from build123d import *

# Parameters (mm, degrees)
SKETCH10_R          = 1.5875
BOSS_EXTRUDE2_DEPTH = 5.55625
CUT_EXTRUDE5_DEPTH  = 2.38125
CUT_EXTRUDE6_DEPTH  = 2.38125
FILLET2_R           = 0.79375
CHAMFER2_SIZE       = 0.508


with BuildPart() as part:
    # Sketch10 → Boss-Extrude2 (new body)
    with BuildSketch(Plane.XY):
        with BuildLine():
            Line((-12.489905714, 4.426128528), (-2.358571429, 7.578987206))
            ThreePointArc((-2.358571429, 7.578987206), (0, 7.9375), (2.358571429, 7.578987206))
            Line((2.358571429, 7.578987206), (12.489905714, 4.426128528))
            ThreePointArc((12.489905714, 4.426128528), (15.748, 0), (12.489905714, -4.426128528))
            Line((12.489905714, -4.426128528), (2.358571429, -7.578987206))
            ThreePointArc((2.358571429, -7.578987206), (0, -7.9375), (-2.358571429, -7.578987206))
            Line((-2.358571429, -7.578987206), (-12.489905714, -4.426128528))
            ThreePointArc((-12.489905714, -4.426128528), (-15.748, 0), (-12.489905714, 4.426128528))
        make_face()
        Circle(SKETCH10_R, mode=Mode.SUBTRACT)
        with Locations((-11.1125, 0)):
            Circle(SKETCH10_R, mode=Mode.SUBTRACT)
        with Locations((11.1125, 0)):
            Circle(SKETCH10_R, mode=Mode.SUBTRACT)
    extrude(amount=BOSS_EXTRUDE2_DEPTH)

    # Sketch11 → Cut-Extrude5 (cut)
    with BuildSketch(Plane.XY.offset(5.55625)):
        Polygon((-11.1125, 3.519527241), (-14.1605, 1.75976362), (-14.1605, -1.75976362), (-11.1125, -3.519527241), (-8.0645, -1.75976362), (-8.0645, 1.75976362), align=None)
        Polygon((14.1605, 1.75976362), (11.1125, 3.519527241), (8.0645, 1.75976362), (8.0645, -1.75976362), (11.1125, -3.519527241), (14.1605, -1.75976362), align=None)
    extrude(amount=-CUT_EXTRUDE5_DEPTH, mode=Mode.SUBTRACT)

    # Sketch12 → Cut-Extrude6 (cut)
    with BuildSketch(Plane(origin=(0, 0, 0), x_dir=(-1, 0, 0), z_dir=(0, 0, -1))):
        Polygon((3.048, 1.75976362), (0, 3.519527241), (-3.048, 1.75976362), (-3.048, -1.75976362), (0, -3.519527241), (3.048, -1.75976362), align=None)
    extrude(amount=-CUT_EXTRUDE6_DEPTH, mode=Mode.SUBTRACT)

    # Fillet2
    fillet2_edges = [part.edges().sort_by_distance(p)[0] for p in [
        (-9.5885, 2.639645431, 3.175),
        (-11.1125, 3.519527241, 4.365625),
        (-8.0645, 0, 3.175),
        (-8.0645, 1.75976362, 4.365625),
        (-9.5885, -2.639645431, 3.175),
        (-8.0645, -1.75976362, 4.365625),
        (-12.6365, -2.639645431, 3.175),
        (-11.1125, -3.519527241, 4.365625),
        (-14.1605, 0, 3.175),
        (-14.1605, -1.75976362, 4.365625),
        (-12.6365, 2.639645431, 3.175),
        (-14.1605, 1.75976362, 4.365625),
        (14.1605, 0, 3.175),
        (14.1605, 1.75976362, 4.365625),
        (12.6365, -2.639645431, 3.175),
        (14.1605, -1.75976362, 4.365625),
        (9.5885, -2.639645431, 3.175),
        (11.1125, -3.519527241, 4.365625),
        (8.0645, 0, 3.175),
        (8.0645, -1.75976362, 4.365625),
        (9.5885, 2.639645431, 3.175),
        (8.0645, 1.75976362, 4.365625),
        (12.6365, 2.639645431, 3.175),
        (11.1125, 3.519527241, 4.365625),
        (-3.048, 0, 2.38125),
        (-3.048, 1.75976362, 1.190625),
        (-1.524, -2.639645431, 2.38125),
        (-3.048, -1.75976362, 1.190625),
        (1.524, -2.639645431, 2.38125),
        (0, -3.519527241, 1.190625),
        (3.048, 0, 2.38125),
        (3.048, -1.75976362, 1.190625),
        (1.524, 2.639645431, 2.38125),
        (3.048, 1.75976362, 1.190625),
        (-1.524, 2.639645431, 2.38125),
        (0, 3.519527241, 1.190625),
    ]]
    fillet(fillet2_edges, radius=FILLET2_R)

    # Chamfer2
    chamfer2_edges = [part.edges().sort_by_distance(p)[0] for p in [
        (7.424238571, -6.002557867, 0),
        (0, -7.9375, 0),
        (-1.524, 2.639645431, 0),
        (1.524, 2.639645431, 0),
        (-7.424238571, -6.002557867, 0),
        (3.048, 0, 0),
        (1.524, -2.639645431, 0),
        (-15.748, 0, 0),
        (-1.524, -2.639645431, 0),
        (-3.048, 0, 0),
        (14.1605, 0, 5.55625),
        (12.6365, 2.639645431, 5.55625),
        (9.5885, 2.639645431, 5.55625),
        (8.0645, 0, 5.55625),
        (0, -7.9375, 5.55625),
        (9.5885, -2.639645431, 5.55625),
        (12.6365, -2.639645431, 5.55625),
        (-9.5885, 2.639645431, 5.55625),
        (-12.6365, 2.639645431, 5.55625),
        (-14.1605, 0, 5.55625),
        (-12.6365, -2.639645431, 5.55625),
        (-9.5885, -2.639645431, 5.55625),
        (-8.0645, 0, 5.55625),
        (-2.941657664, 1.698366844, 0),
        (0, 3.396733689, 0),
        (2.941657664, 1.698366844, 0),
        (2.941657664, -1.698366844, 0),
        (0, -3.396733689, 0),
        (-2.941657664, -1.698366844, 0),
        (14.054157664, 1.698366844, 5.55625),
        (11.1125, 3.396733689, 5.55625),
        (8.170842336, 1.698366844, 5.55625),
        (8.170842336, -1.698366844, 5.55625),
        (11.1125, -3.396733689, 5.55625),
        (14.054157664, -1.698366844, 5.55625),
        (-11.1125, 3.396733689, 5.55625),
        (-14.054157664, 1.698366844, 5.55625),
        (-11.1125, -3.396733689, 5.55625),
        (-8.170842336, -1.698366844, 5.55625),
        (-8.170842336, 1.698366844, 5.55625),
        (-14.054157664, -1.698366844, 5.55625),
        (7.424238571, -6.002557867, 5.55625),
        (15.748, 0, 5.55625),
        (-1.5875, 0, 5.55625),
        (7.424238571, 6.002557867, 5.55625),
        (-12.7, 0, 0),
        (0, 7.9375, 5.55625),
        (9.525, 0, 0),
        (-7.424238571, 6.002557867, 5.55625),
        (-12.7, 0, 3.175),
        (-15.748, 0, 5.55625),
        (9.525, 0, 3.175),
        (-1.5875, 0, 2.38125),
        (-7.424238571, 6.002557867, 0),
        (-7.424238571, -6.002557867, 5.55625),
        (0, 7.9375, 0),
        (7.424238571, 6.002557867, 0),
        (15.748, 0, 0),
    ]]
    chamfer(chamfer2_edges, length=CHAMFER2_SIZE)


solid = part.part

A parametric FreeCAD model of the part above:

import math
import FreeCAD as App
import Part
import Sketcher
Q = App.Units.Quantity


def edges_at(feature, points):
    """Names of the edges that pass closest to the given points."""
    edges = feature.Shape.Edges
    near = lambda p: min(range(len(edges)), key=lambda i: edges[i].distToShape(Part.Vertex(*p))[0])
    return sorted({f"Edge{near(p) + 1}" for p in points})


def add_polygon(sketch, points):
    """Adds a closed chain of lines whose ends are joined by coincident constraints."""
    first, n = sketch.GeometryCount, len(points)
    for a, b in zip(points, points[1:] + points[:1]):
        sketch.addGeometry(Part.LineSegment(App.Vector(*a, 0), App.Vector(*b, 0)), False)
    for i in range(n):
        sketch.addConstraint(Sketcher.Constraint("Coincident", first + i, 2, first + (i + 1) % n, 1))

doc = App.newDocument("Part")
body = doc.addObject("PartDesign::Body", "Body")

sketch1 = body.newObject("Sketcher::SketchObject", "Sketch")
sketch1.AttachmentSupport = (doc.getObject("XY_Plane"), [""])
sketch1.MapMode = "FlatFace"
sketch1.addGeometry(Part.LineSegment(App.Vector(-2.358571, 7.578987, 0), App.Vector(-12.489906, 4.426129, 0)), False)
sketch1.addGeometry(Part.ArcOfCircle(Part.Circle(App.Vector(-11.1125, 0, 0), App.Vector(0, 0, 1), 4.6355), math.radians(107.286077), math.radians(252.713923)), False)
sketch1.addGeometry(Part.LineSegment(App.Vector(-12.489906, -4.426129, 0), App.Vector(-2.358571, -7.578987, 0)), False)
sketch1.addGeometry(Part.ArcOfCircle(Part.Circle(App.Vector(0, 0, 0), App.Vector(0, 0, 1), 7.9375), math.radians(-107.286077), math.radians(-72.713923)), False)
sketch1.addGeometry(Part.LineSegment(App.Vector(2.358571, -7.578987, 0), App.Vector(12.489906, -4.426129, 0)), False)
sketch1.addGeometry(Part.ArcOfCircle(Part.Circle(App.Vector(11.1125, 0, 0), App.Vector(0, 0, 1), 4.6355), math.radians(-72.713923), math.radians(72.713923)), False)
sketch1.addGeometry(Part.LineSegment(App.Vector(12.489906, 4.426129, 0), App.Vector(2.358571, 7.578987, 0)), False)
sketch1.addGeometry(Part.ArcOfCircle(Part.Circle(App.Vector(0, 0, 0), App.Vector(0, 0, 1), 7.9375), math.radians(72.713923), math.radians(107.286077)), False)
sketch1.addGeometry(Part.Circle(App.Vector(11.1125, 0, 0), App.Vector(0, 0, 1), 1.5875), False)
sketch1.addGeometry(Part.Circle(App.Vector(0, 0, 0), App.Vector(0, 0, 1), 1.5875), False)
sketch1.addGeometry(Part.Circle(App.Vector(-11.1125, 0, 0), App.Vector(0, 0, 1), 1.5875), False)
sketch1.addConstraint(Sketcher.Constraint("Tangent", 0, 2, 1, 1))
sketch1.addConstraint(Sketcher.Constraint("Tangent", 1, 2, 2, 1))
sketch1.addConstraint(Sketcher.Constraint("Tangent", 2, 2, 3, 1))
sketch1.addConstraint(Sketcher.Constraint("Tangent", 3, 2, 4, 1))
sketch1.addConstraint(Sketcher.Constraint("Tangent", 4, 2, 5, 1))
sketch1.addConstraint(Sketcher.Constraint("Tangent", 5, 2, 6, 1))
sketch1.addConstraint(Sketcher.Constraint("Tangent", 6, 2, 7, 1))
sketch1.addConstraint(Sketcher.Constraint("Tangent", 7, 2, 0, 1))
sketch1.addConstraint(Sketcher.Constraint("Coincident", 3, 3, -1, 1))
sketch1.addConstraint(Sketcher.Constraint("Coincident", 7, 3, -1, 1))
sketch1.addConstraint(Sketcher.Constraint("Coincident", 9, 3, -1, 1))
sketch1.addConstraint(Sketcher.Constraint("Coincident", 8, 3, 5, 3))
sketch1.addConstraint(Sketcher.Constraint("Coincident", 10, 3, 1, 3))
sketch1.addConstraint(Sketcher.Constraint("Equal", 1, 5))
sketch1.addConstraint(Sketcher.Constraint("Equal", 3, 7))
sketch1.addConstraint(Sketcher.Constraint("Equal", 8, 9))
sketch1.addConstraint(Sketcher.Constraint("Equal", 9, 10))
sketch1.addConstraint(Sketcher.Constraint("Symmetric", 1, 3, 5, 3, -1, 1))
sketch1.addConstraint(Sketcher.Constraint("PointOnObject", 1, 3, -1))
sketch1.addConstraint(Sketcher.Constraint("Diameter", 8, Q("0.125 in")))
sketch1.addConstraint(Sketcher.Constraint("Radius", 3, Q("0.3125 in")))
sketch1.addConstraint(Sketcher.Constraint("Radius", 1, Q("0.1825 in")))
sketch1.addConstraint(Sketcher.Constraint("DistanceX", 1, 3, -1, 1, Q("0.4375 in")))
pad1 = body.newObject("PartDesign::Pad", "Pad")
pad1.Profile = sketch1
pad1.Length = Q("0.21875 in")

sketch2 = body.newObject("Sketcher::SketchObject", "Sketch001")
sketch2.AttachmentSupport = (doc.getObject("XY_Plane"), [""])
sketch2.MapMode = "FlatFace"
sketch2.AttachmentOffset = App.Placement(App.Vector(0, 0, 0.21875 * 25.4), App.Rotation())
add_polygon(sketch2, [(-11.1125, 3.519527), (-14.1605, 1.759764), (-14.1605, -1.759764), (-11.1125, -3.519527), (-8.0645, -1.759764), (-8.0645, 1.759764)])
add_polygon(sketch2, [(14.1605, 1.759764), (11.1125, 3.519527), (8.0645, 1.759764), (8.0645, -1.759764), (11.1125, -3.519527), (14.1605, -1.759764)])
sketch2.addConstraint(Sketcher.Constraint("Vertical", 1))
sketch2.addConstraint(Sketcher.Constraint("Vertical", 4))
sketch2.addConstraint(Sketcher.Constraint("Vertical", 8))
sketch2.addConstraint(Sketcher.Constraint("Vertical", 11))
sketch2.addConstraint(Sketcher.Constraint("Symmetric", 2, 2, 6, 2, -1, 1))
sketch2.addConstraint(Sketcher.Constraint("Symmetric", 3, 2, 7, 2, -1, 1))
sketch2.addConstraint(Sketcher.Constraint("Symmetric", 5, 2, 9, 2, -1, 1))
sketch2.addConstraint(Sketcher.Constraint("Symmetric", 0, 2, 10, 2, -1, 1))
sketch2.addConstraint(Sketcher.Constraint("Symmetric", 5, 2, 6, 2, -2))
sketch2.addConstraint(Sketcher.Constraint("Parallel", 0, 3))
sketch2.addConstraint(Sketcher.Constraint("Parallel", 2, 5))
sketch2.addConstraint(Sketcher.Constraint("Parallel", 5, 6))
sketch2.addConstraint(Sketcher.Constraint("Parallel", 6, 9))
sketch2.addConstraint(Sketcher.Constraint("Horizontal", 1, 2, 3, 2))
sketch2.addConstraint(Sketcher.Constraint("Horizontal", 0, 2, 4, 2))
sketch2.addConstraint(Sketcher.Constraint("Angle", 0, Q("-150 deg")))
sketch2.addConstraint(Sketcher.Constraint("DistanceX", 1, 2, 2, 2, Q("0.12 in")))
sketch2.addConstraint(Sketcher.Constraint("DistanceX", 2, 2, -1, 1, Q("0.4375 in")))
sketch2.addConstraint(Sketcher.Constraint("DistanceY", 1, 2, 1, 1, Q("3.519527 mm")))
pocket1 = body.newObject("PartDesign::Pocket", "Pocket")
pocket1.Profile = sketch2
pocket1.Length = Q("0.09375 in")

sketch3 = body.newObject("Sketcher::SketchObject", "Sketch002")
sketch3.AttachmentSupport = (doc.getObject("XY_Plane"), [""])
sketch3.MapMode = "FlatFace"
add_polygon(sketch3, [(-3.048, 1.759764), (0, 3.519527), (3.048, 1.759764), (3.048, -1.759764), (0, -3.519527), (-3.048, -1.759764)])
sketch3.addConstraint(Sketcher.Constraint("Vertical", 2))
sketch3.addConstraint(Sketcher.Constraint("Vertical", 5))
sketch3.addConstraint(Sketcher.Constraint("Symmetric", 0, 2, 3, 2, -1, 1))
sketch3.addConstraint(Sketcher.Constraint("Symmetric", 1, 2, 4, 2, -1, 1))
sketch3.addConstraint(Sketcher.Constraint("PointOnObject", 0, 2, -2))
sketch3.addConstraint(Sketcher.Constraint("Parallel", 0, 3))
sketch3.addConstraint(Sketcher.Constraint("Horizontal", 2, 2, 4, 2))
sketch3.addConstraint(Sketcher.Constraint("Angle", 0, Q("30 deg")))
sketch3.addConstraint(Sketcher.Constraint("DistanceX", -1, 1, 1, 2, Q("0.12 in")))
sketch3.addConstraint(Sketcher.Constraint("DistanceY", 2, 2, 2, 1, Q("3.519527 mm")))
pocket2 = body.newObject("PartDesign::Pocket", "Pocket001")
pocket2.Profile = sketch3
pocket2.Length = Q("0.09375 in")
pocket2.Reversed = True
doc.recompute()

fillet = body.newObject("PartDesign::Fillet", "Fillet")
fillet.Base = (pocket2, edges_at(pocket2, [
    (-9.588, 2.64, 3.175),
    (-11.113, 3.52, 4.366),
    (-8.065, 0, 3.175),
    (-8.065, 1.76, 4.366),
    (-9.588, -2.64, 3.175),
    (-8.065, -1.76, 4.366),
    (-12.636, -2.64, 3.175),
    (-11.113, -3.52, 4.366),
    (-14.161, 0, 3.175),
    (-14.161, -1.76, 4.366),
    (-12.636, 2.64, 3.175),
    (-14.161, 1.76, 4.366),
    (14.161, 0, 3.175),
    (14.161, 1.76, 4.366),
    (12.636, -2.64, 3.175),
    (14.161, -1.76, 4.366),
    (9.588, -2.64, 3.175),
    (11.113, -3.52, 4.366),
    (8.065, 0, 3.175),
    (8.065, -1.76, 4.366),
    (9.588, 2.64, 3.175),
    (8.065, 1.76, 4.366),
    (12.636, 2.64, 3.175),
    (11.113, 3.52, 4.366),
    (-3.048, 0, 2.381),
    (-3.048, 1.76, 1.191),
    (-1.524, -2.64, 2.381),
    (-3.048, -1.76, 1.191),
    (1.524, -2.64, 2.381),
    (0, -3.52, 1.191),
    (3.048, 0, 2.381),
    (3.048, -1.76, 1.191),
    (1.524, 2.64, 2.381),
    (3.048, 1.76, 1.191),
    (-1.524, 2.64, 2.381),
    (0, 3.52, 1.191),
]))
fillet.Radius = Q("0.03125 in")
doc.recompute()

chamfer = body.newObject("PartDesign::Chamfer", "Chamfer")
chamfer.Base = (fillet, edges_at(fillet, [
    (7.424, -6.003, 0),
    (0, -7.938, 0),
    (-1.524, 2.64, 0),
    (1.524, 2.64, 0),
    (-7.424, -6.003, 0),
    (3.048, 0, 0),
    (1.524, -2.64, 0),
    (-15.748, 0, 0),
    (-1.524, -2.64, 0),
    (-3.048, 0, 0),
    (14.161, 0, 5.556),
    (12.636, 2.64, 5.556),
    (9.588, 2.64, 5.556),
    (8.065, 0, 5.556),
    (0, -7.938, 5.556),
    (9.588, -2.64, 5.556),
    (12.636, -2.64, 5.556),
    (-9.588, 2.64, 5.556),
    (-12.636, 2.64, 5.556),
    (-14.161, 0, 5.556),
    (-12.636, -2.64, 5.556),
    (-9.588, -2.64, 5.556),
    (-8.065, 0, 5.556),
    (-2.942, 1.698, 0),
    (0, 3.397, 0),
    (2.942, 1.698, 0),
    (2.942, -1.698, 0),
    (0, -3.397, 0),
    (-2.942, -1.698, 0),
    (14.054, 1.698, 5.556),
    (11.113, 3.397, 5.556),
    (8.171, 1.698, 5.556),
    (8.171, -1.698, 5.556),
    (11.113, -3.397, 5.556),
    (14.054, -1.698, 5.556),
    (-11.113, 3.397, 5.556),
    (-14.054, 1.698, 5.556),
    (-11.113, -3.397, 5.556),
    (-8.171, -1.698, 5.556),
    (-8.171, 1.698, 5.556),
    (-14.054, -1.698, 5.556),
    (7.424, -6.003, 5.556),
    (15.748, 0, 5.556),
    (-1.587, 0, 5.556),
    (7.424, 6.003, 5.556),
    (-12.7, 0, 0),
    (0, 7.938, 5.556),
    (9.525, 0, 0),
    (-7.424, 6.003, 5.556),
    (-12.7, 0, 3.175),
    (-15.748, 0, 5.556),
    (9.525, 0, 3.175),
    (-1.587, 0, 2.381),
    (-7.424, 6.003, 0),
    (-7.424, -6.003, 5.556),
    (0, 7.938, 0),
    (7.424, 6.003, 0),
    (15.748, 0, 0),
]))
chamfer.Size = Q("0.02 in")

doc.recompute()
